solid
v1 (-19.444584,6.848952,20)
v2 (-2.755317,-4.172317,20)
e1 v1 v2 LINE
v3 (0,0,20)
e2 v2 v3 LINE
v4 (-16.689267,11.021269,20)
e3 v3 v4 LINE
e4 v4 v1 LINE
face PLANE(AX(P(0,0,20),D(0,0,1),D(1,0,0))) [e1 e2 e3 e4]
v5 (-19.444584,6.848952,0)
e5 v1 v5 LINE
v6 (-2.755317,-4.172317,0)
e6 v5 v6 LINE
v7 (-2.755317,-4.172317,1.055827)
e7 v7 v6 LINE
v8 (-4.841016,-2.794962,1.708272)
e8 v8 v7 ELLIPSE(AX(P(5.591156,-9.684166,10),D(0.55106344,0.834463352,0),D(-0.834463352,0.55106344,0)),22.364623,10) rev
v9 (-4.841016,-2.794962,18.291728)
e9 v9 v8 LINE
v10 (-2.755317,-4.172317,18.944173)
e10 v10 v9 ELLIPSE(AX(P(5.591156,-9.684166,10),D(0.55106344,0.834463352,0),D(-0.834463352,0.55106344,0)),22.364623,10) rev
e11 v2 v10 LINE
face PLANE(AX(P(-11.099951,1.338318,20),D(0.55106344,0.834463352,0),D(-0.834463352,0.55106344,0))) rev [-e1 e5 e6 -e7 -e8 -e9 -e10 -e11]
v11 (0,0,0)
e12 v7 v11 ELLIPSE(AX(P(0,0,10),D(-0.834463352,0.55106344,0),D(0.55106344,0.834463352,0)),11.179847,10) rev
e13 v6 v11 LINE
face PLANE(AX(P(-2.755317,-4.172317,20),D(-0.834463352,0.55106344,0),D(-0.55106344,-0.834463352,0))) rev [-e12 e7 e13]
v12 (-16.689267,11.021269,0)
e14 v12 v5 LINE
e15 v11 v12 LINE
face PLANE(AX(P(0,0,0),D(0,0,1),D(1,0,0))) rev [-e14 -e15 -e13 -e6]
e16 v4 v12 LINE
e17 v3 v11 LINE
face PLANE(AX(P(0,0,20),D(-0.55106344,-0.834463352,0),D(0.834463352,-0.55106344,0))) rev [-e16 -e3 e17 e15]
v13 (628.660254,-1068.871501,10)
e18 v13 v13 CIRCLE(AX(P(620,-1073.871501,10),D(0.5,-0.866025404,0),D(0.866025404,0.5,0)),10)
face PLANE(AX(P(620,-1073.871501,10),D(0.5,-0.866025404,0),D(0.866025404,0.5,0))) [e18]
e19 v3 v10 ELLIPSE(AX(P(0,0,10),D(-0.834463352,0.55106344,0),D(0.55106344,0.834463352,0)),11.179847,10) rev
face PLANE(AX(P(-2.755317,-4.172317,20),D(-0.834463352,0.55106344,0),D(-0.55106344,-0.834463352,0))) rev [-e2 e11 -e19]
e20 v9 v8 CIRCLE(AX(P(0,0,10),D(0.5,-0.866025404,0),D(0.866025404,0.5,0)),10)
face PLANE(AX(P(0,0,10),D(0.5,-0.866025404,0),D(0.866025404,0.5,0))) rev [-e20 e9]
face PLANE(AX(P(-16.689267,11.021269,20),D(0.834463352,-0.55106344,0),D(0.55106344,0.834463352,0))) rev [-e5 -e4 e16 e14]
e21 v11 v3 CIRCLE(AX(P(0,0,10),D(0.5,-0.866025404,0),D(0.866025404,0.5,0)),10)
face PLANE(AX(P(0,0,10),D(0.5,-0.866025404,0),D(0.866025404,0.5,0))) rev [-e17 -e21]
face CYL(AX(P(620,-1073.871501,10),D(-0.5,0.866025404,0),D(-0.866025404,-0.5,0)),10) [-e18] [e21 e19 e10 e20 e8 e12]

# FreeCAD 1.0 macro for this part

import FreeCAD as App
import Part
import Sketcher
Q = App.Units.Quantity

doc = App.newDocument("Part")
body = doc.addObject("PartDesign::Body", "Body")

# Sketch on XY plane
sketch1 = body.newObject("Sketcher::SketchObject", "Sketch")
sketch1.AttachmentSupport = (doc.getObject("XY_Plane"), [""])
sketch1.MapMode = "FlatFace"
sketch1.addGeometry(Part.LineSegment(App.Vector(0, 0, 0), App.Vector(-16.689267, 11.021269, 0)), False)
sketch1.addGeometry(Part.LineSegment(App.Vector(-16.689267, 11.021269, 0), App.Vector(-19.444584, 6.848952, 0)), False)
sketch1.addGeometry(Part.LineSegment(App.Vector(-19.444584, 6.848952, 0), App.Vector(-11.099951, 1.338318, 0)), False)
sketch1.addGeometry(Part.LineSegment(App.Vector(-11.099951, 1.338318, 0), App.Vector(-2.755317, -4.172317, 0)), False)
sketch1.addGeometry(Part.LineSegment(App.Vector(-2.755317, -4.172317, 0), App.Vector(0, 0, 0)), False)
sketch1.addConstraint(Sketcher.Constraint("Coincident", 0, 2, 1, 1))
sketch1.addConstraint(Sketcher.Constraint("Coincident", 1, 2, 2, 1))
sketch1.addConstraint(Sketcher.Constraint("Coincident", 2, 2, 3, 1))
sketch1.addConstraint(Sketcher.Constraint("Coincident", 3, 2, 4, 1))
sketch1.addConstraint(Sketcher.Constraint("Coincident", 4, 2, 0, 1))
sketch1.addConstraint(Sketcher.Constraint("Coincident", 4, 2, -1, 1))
sketch1.addConstraint(Sketcher.Constraint("Perpendicular", 0, 1))
sketch1.addConstraint(Sketcher.Constraint("Perpendicular", 1, 2))
sketch1.addConstraint(Sketcher.Constraint("Parallel", 2, 3))
sketch1.addConstraint(Sketcher.Constraint("Perpendicular", 3, 4))
sketch1.addConstraint(Sketcher.Constraint("Equal", 2, 3))
sketch1.addConstraint(Sketcher.Constraint("Distance", 0, Q("20 mm")))
sketch1.addConstraint(Sketcher.Constraint("Distance", 1, Q("5 mm")))
sketch1.addConstraint(Sketcher.Constraint("Angle", 0, Q("146.56 deg")))
pad1 = body.newObject("PartDesign::Pad", "Pad")
pad1.Profile = sketch1
pad1.Length = 20

# Sketch on an angled plane
sketch2 = body.newObject("Sketcher::SketchObject", "Sketch001")
sketch2.Placement = App.Placement(App.Vector(0, 0, 0), App.Rotation(App.Vector(-0.866025404, -0.5, 0), App.Vector(0, 0, -1), App.Vector(0.5, -0.866025404, 0), "ZXY"))
sketch2.addGeometry(Part.Circle(App.Vector(0, -10, 0), App.Vector(0, 0, 1), 10), False)
sketch2.addConstraint(Sketcher.Constraint("PointOnObject", 0, 3, -2))
sketch2.addConstraint(Sketcher.Constraint("Diameter", 0, Q("20 mm")))
sketch2.addConstraint(Sketcher.Constraint("DistanceY", 0, 3, -1, 1, Q("10 mm")))
pad2 = body.newObject("PartDesign::Pad", "Pad001")
pad2.Profile = sketch2
pad2.Length = 1240

doc.recompute()
